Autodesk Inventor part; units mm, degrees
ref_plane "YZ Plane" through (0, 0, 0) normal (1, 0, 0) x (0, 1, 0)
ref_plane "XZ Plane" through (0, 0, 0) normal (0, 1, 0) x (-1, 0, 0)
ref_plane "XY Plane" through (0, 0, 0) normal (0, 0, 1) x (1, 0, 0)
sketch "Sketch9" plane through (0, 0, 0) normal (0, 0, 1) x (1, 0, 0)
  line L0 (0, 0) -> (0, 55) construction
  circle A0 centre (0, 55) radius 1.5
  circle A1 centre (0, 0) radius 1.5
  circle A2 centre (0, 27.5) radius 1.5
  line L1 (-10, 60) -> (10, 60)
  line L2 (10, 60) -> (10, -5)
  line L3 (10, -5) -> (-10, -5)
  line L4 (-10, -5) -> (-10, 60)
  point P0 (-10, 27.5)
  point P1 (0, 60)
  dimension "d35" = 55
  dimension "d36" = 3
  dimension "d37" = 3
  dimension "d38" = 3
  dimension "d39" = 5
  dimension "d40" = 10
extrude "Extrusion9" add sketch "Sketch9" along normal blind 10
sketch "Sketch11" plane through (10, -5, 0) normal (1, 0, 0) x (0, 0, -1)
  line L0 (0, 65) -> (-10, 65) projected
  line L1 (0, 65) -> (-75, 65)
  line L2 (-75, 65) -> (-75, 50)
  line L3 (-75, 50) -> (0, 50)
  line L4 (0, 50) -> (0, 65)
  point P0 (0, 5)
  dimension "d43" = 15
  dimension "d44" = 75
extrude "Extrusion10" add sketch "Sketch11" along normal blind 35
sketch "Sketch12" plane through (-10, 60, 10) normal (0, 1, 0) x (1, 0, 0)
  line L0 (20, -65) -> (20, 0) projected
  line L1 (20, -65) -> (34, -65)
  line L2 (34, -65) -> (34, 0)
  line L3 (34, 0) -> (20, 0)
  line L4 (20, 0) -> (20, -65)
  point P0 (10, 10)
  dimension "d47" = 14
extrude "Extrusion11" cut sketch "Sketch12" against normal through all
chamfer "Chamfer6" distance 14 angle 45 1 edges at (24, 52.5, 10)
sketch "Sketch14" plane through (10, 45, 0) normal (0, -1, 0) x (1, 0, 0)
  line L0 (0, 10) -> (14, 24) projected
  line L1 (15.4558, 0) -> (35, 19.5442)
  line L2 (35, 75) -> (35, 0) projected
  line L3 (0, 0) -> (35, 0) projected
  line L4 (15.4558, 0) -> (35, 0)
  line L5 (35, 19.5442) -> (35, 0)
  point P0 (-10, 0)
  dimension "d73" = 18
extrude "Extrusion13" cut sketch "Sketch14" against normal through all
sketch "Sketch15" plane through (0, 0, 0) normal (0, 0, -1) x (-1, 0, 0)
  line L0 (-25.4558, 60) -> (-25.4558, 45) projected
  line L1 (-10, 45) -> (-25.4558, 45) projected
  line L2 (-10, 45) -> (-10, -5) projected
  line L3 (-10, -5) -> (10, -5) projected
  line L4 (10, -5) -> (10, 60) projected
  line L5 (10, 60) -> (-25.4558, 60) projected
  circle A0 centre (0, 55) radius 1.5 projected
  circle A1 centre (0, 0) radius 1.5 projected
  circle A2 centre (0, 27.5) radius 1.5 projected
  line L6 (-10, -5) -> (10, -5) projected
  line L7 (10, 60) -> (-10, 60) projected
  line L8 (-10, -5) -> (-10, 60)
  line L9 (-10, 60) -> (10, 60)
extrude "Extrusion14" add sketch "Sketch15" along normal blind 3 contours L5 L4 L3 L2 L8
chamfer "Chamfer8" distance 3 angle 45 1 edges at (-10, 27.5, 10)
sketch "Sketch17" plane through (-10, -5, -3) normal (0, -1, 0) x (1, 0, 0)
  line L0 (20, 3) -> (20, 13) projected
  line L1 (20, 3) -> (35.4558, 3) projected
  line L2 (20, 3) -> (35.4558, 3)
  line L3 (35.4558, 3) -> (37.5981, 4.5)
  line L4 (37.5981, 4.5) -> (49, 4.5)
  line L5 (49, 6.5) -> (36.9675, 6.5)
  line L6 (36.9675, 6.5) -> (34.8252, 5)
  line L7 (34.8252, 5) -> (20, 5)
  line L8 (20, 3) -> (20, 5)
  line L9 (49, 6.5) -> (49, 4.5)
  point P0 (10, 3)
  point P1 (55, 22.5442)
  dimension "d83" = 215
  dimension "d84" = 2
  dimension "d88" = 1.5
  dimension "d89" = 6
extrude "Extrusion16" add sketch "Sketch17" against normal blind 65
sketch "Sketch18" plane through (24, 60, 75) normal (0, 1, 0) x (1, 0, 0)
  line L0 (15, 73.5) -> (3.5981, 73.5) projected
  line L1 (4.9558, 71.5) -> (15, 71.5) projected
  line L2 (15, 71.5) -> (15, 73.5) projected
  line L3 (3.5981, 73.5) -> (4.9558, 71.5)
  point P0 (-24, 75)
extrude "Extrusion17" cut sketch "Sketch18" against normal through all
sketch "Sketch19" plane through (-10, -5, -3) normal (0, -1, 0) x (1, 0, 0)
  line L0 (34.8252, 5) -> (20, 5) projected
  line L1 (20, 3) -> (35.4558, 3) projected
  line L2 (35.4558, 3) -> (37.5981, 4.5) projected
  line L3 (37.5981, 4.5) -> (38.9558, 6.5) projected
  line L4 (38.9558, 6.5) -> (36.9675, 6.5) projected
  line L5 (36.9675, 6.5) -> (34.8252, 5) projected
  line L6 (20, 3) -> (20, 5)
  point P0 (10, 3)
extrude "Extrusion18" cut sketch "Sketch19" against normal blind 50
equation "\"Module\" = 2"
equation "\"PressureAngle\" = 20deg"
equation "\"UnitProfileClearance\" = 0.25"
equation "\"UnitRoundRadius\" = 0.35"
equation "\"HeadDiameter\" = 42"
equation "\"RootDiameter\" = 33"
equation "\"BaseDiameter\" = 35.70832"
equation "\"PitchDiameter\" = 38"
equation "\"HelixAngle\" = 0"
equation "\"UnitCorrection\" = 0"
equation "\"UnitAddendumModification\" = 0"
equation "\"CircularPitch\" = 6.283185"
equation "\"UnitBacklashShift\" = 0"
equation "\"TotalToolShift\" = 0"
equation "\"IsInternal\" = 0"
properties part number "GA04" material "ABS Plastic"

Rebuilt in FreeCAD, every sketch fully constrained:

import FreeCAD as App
import Part
import Sketcher
from FreeCAD import Vector
Q = App.Units.Quantity


def edges_at(feature, points):
    """Names of the edges that pass closest to the given points."""
    edges = feature.Shape.Edges
    near = lambda p: min(range(len(edges)), key=lambda i: edges[i].distToShape(Part.Vertex(*p))[0])
    return sorted({f"Edge{near(p) + 1}" for p in points})


def add_polygon(sketch, points):
    """Adds a closed chain of lines whose ends are joined by coincident constraints."""
    first, n = sketch.GeometryCount, len(points)
    for a, b in zip(points, points[1:] + points[:1]):
        sketch.addGeometry(Part.LineSegment(App.Vector(*a, 0), App.Vector(*b, 0)), False)
    for i in range(n):
        sketch.addConstraint(Sketcher.Constraint("Coincident", first + i, 2, first + (i + 1) % n, 1))

doc = App.newDocument("Part")
body = doc.addObject("PartDesign::Body", "Body")

sketch1 = doc.addObject("Sketcher::SketchObject", "Sketch")
body.addObject(sketch1)
sketch1.AttachmentSupport = (doc.XY_Plane, [""])
sketch1.MapMode = "FlatFace"
add_polygon(sketch1, [(10, 60), (-10, 60), (-10, -5), (10, -5)])
sketch1.addGeometry(Part.Circle(Vector(0, 0, 0), Vector(0, 0, 1), 1.5), False)
sketch1.addGeometry(Part.Circle(Vector(0, 27.5, 0), Vector(0, 0, 1), 1.5), False)
sketch1.addGeometry(Part.Circle(Vector(0, 55, 0), Vector(0, 0, 1), 1.5), False)
sketch1.addConstraint([
    Sketcher.Constraint("Horizontal", 0),
    Sketcher.Constraint("Vertical", 1),
    Sketcher.Constraint("Horizontal", 2),
    Sketcher.Constraint("Vertical", 3),
    Sketcher.Constraint("Coincident", 4, 3, -1, 1),
    Sketcher.Constraint("Equal", 4, 5),
    Sketcher.Constraint("Equal", 5, 6),
    Sketcher.Constraint("PointOnObject", 5, 3, -2),
    Sketcher.Constraint("PointOnObject", 6, 3, -2),
    Sketcher.Constraint("Diameter", 4, 3.0),
    Sketcher.Constraint("DistanceY", -1, 1, 6, 3, 55.0),
    Sketcher.Constraint("DistanceX", 0, 2, -1, 1, 10.0),
    Sketcher.Constraint("DistanceY", 1, 2, -1, 1, 5.0),
    Sketcher.Constraint("DistanceX", -1, 1, 2, 2, 10.0),
    Sketcher.Constraint("DistanceY", 6, 3, 0, 2, 5.0),
    Sketcher.Constraint("DistanceY", -1, 1, 5, 3, 27.5),
])
pad1 = doc.addObject("PartDesign::Pad", "Pad")
body.addObject(pad1)
pad1.Profile = sketch1
pad1.Length = 10

sketch2 = doc.addObject("Sketcher::SketchObject", "Sketch001")
body.addObject(sketch2)
sketch2.AttachmentSupport = (doc.YZ_Plane, [""])
sketch2.MapMode = "FlatFace"
sketch2.AttachmentOffset = App.Placement(Vector(0, 0, 10), App.Rotation())
add_polygon(sketch2, [(45, 0), (60, 0), (60, 75), (45, 75)])
sketch2.addConstraint([
    Sketcher.Constraint("Horizontal", 0),
    Sketcher.Constraint("Vertical", 1),
    Sketcher.Constraint("Horizontal", 2),
    Sketcher.Constraint("Vertical", 3),
    Sketcher.Constraint("PointOnObject", 0, 2, -1),
    Sketcher.Constraint("DistanceX", 0, 1, 0, 2, 15.0),
    Sketcher.Constraint("DistanceY", 1, 1, 1, 2, 75.0),
    Sketcher.Constraint("DistanceX", -1, 1, 0, 2, 60.0),
])
pad2 = doc.addObject("PartDesign::Pad", "Pad001")
body.addObject(pad2)
pad2.Profile = sketch2
pad2.Length = 35

sketch3 = doc.addObject("Sketcher::SketchObject", "Sketch002")
body.addObject(sketch3)
sketch3.AttachmentSupport = (doc.XZ_Plane, [""])
sketch3.MapMode = "FlatFace"
sketch3.AttachmentOffset = App.Placement(Vector(0, 0, -60), App.Rotation())
add_polygon(sketch3, [(10, 10), (10, 75), (24, 75), (24, 10)])
sketch3.addConstraint([
    Sketcher.Constraint("Vertical", 0),
    Sketcher.Constraint("Horizontal", 1),
    Sketcher.Constraint("Vertical", 2),
    Sketcher.Constraint("Horizontal", 3),
    Sketcher.Constraint("DistanceX", 1, 1, 1, 2, 14.0),
    Sketcher.Constraint("DistanceY", 0, 1, 0, 2, 65.0),
    Sketcher.Constraint("DistanceX", -1, 1, 0, 2, 10.0),
    Sketcher.Constraint("DistanceY", -1, 1, 0, 2, 75.0),
])
pocket1 = doc.addObject("PartDesign::Pocket", "Pocket")
body.addObject(pocket1)
pocket1.Profile = sketch3
pocket1.Type = "ThroughAll"
pocket1.Reversed = True
doc.recompute()

chamfer = doc.addObject("PartDesign::Chamfer", "Chamfer")
body.addObject(chamfer)
chamfer.Base = (pocket1, edges_at(pocket1, [(24, 52.5, 10)]))
chamfer.Size = 14

sketch4 = doc.addObject("Sketcher::SketchObject", "Sketch003")
body.addObject(sketch4)
sketch4.AttachmentSupport = (doc.XZ_Plane, [""])
sketch4.MapMode = "FlatFace"
sketch4.AttachmentOffset = App.Placement(Vector(0, 0, -45), App.Rotation())
add_polygon(sketch4, [(45, 20), (25, 0), (45, 0)])
sketch4.addConstraint([
    Sketcher.Constraint("Horizontal", 1),
    Sketcher.Constraint("Vertical", 2),
    Sketcher.Constraint("PointOnObject", 0, 2, -1),
    Sketcher.Constraint("Equal", 1, 2),
    Sketcher.Constraint("DistanceX", -1, 1, 1, 2, 45.0),
    Sketcher.Constraint("DistanceX", 1, 1, 1, 2, 19.5442),
])
pocket2 = doc.addObject("PartDesign::Pocket", "Pocket001")
body.addObject(pocket2)
pocket2.Profile = sketch4
pocket2.Type = "ThroughAll"

sketch5 = doc.addObject("Sketcher::SketchObject", "Sketch004")
body.addObject(sketch5)
sketch5.AttachmentSupport = (doc.XY_Plane, [""])
sketch5.MapMode = "FlatFace"
add_polygon(sketch5, [(-10, 60), (10, 60), (10, -5), (-10, -5)])
sketch5.addGeometry(Part.Circle(Vector(0, 0, 0), Vector(0, 0, 1), 1.5), False)
sketch5.addGeometry(Part.Circle(Vector(0, 27.5, 0), Vector(0, 0, 1), 1.5), False)
sketch5.addGeometry(Part.Circle(Vector(0, 55, 0), Vector(0, 0, 1), 1.5), False)
sketch5.addConstraint([
    Sketcher.Constraint("Horizontal", 0),
    Sketcher.Constraint("Vertical", 1),
    Sketcher.Constraint("Horizontal", 2),
    Sketcher.Constraint("Vertical", 3),
    Sketcher.Constraint("Coincident", 4, 3, -1, 1),
    Sketcher.Constraint("Equal", 4, 5),
    Sketcher.Constraint("Equal", 5, 6),
    Sketcher.Constraint("PointOnObject", 5, 3, -2),
    Sketcher.Constraint("PointOnObject", 6, 3, -2),
    Sketcher.Constraint("Diameter", 4, 3.0),
    Sketcher.Constraint("DistanceX", 0, 1, 0, 2, 20.0),
    Sketcher.Constraint("DistanceY", 1, 2, 1, 1, 65.0),
    Sketcher.Constraint("DistanceY", -1, 1, 6, 3, 55.0),
    Sketcher.Constraint("DistanceX", -1, 1, 0, 2, 10.0),
    Sketcher.Constraint("DistanceY", -1, 1, 0, 2, 60.0),
    Sketcher.Constraint("DistanceY", -1, 1, 5, 3, 27.5),
])
pad3 = doc.addObject("PartDesign::Pad", "Pad002")
body.addObject(pad3)
pad3.Profile = sketch5
pad3.Length = 3
pad3.Reversed = True
doc.recompute()

chamfer2 = doc.addObject("PartDesign::Chamfer", "Chamfer001")
body.addObject(chamfer2)
chamfer2.Base = (pad3, edges_at(pad3, [(-10, 27.5, 10)]))
chamfer2.Size = 3

sketch6 = doc.addObject("Sketcher::SketchObject", "Sketch005")
body.addObject(sketch6)
sketch6.AttachmentSupport = (doc.XZ_Plane, [""])
sketch6.MapMode = "FlatFace"
sketch6.AttachmentOffset = App.Placement(Vector(0, 0, 5), App.Rotation())
add_polygon(sketch6, [(10, 2), (10, 0), (25.5, 0), (27.6, 1.5), (39, 1.5), (39, 3.5), (27, 3.5), (24.8, 2)])
sketch6.addConstraint([
    Sketcher.Constraint("Vertical", 0),
    Sketcher.Constraint("Horizontal", 1),
    Sketcher.Constraint("Horizontal", 3),
    Sketcher.Constraint("Vertical", 4),
    Sketcher.Constraint("Horizontal", 5),
    Sketcher.Constraint("Horizontal", 7),
    Sketcher.Constraint("PointOnObject", 0, 2, -1),
    Sketcher.Constraint("Parallel", 2, 6),
    Sketcher.Constraint("Equal", 0, 4),
    Sketcher.Constraint("DistanceY", 0, 2, 0, 1, 2.0),
    Sketcher.Constraint("DistanceY", -1, 1, 2, 2, 1.5),
    Sketcher.Constraint("Angle", 2, Q("34.999 deg")),
    Sketcher.Constraint("DistanceX", -1, 1, 0, 2, 10.0),
    Sketcher.Constraint("DistanceX", -1, 1, 3, 2, 39.0),
    Sketcher.Constraint("DistanceX", 3, 1, 3, 2, 11.402),
    Sketcher.Constraint("DistanceX", 5, 2, 5, 1, 12.0325),
])
pad4 = doc.addObject("PartDesign::Pad", "Pad003")
body.addObject(pad4)
pad4.Profile = sketch6
pad4.Length = 65
pad4.Reversed = True

sketch7 = doc.addObject("Sketcher::SketchObject", "Sketch006")
body.addObject(sketch7)
sketch7.AttachmentSupport = (doc.XZ_Plane, [""])
sketch7.MapMode = "FlatFace"
sketch7.AttachmentOffset = App.Placement(Vector(0, 0, -60), App.Rotation())
add_polygon(sketch7, [(39, 3.5), (39, 1.5), (27.6, 1.5), (29, 3.5)])
sketch7.addConstraint([
    Sketcher.Constraint("Vertical", 0),
    Sketcher.Constraint("Horizontal", 1),
    Sketcher.Constraint("Horizontal", 3),
    Sketcher.Constraint("DistanceY", 0, 2, 0, 1, 2.0),
    Sketcher.Constraint("DistanceX", -1, 1, 0, 2, 39.0),
    Sketcher.Constraint("DistanceY", -1, 1, 0, 2, 1.5),
    Sketcher.Constraint("Angle", 2, Q("55.8294 deg")),
    Sketcher.Constraint("DistanceX", 1, 2, 1, 1, 11.402),
])
pocket3 = doc.addObject("PartDesign::Pocket", "Pocket002")
body.addObject(pocket3)
pocket3.Profile = sketch7
pocket3.Type = "ThroughAll"
pocket3.Reversed = True

sketch8 = doc.addObject("Sketcher::SketchObject", "Sketch007")
body.addObject(sketch8)
sketch8.AttachmentSupport = (doc.XZ_Plane, [""])
sketch8.MapMode = "FlatFace"
sketch8.AttachmentOffset = App.Placement(Vector(0, 0, 5), App.Rotation())
add_polygon(sketch8, [(27, 3.5), (24.8, 2), (10, 2), (10, 0), (25.5, 0), (27.6, 1.5), (29, 3.5)])
sketch8.addConstraint([
    Sketcher.Constraint("Horizontal", 1),
    Sketcher.Constraint("Vertical", 2),
    Sketcher.Constraint("Horizontal", 3),
    Sketcher.Constraint("Horizontal", 6),
    Sketcher.Constraint("PointOnObject", 2, 2, -1),
    Sketcher.Constraint("Parallel", 0, 4),
    Sketcher.Constraint("Equal", 0, 4),
    Sketcher.Constraint("DistanceY", 2, 2, 2, 1, 2.0),
    Sketcher.Constraint("Angle", 0, Q("-145.001 deg")),
    Sketcher.Constraint("DistanceX", -1, 1, 1, 2, 10.0),
    Sketcher.Constraint("DistanceY", -1, 1, 4, 2, 1.5),
    Sketcher.Constraint("Angle", 5, Q("55.8294 deg")),
    Sketcher.Constraint("DistanceX", 1, 2, 1, 1, 14.8252),
    Sketcher.Constraint("DistanceX", 3, 1, 3, 2, 15.4558),
])
pocket4 = doc.addObject("PartDesign::Pocket", "Pocket003")
body.addObject(pocket4)
pocket4.Profile = sketch8
pocket4.Length = 50

doc.recompute()
